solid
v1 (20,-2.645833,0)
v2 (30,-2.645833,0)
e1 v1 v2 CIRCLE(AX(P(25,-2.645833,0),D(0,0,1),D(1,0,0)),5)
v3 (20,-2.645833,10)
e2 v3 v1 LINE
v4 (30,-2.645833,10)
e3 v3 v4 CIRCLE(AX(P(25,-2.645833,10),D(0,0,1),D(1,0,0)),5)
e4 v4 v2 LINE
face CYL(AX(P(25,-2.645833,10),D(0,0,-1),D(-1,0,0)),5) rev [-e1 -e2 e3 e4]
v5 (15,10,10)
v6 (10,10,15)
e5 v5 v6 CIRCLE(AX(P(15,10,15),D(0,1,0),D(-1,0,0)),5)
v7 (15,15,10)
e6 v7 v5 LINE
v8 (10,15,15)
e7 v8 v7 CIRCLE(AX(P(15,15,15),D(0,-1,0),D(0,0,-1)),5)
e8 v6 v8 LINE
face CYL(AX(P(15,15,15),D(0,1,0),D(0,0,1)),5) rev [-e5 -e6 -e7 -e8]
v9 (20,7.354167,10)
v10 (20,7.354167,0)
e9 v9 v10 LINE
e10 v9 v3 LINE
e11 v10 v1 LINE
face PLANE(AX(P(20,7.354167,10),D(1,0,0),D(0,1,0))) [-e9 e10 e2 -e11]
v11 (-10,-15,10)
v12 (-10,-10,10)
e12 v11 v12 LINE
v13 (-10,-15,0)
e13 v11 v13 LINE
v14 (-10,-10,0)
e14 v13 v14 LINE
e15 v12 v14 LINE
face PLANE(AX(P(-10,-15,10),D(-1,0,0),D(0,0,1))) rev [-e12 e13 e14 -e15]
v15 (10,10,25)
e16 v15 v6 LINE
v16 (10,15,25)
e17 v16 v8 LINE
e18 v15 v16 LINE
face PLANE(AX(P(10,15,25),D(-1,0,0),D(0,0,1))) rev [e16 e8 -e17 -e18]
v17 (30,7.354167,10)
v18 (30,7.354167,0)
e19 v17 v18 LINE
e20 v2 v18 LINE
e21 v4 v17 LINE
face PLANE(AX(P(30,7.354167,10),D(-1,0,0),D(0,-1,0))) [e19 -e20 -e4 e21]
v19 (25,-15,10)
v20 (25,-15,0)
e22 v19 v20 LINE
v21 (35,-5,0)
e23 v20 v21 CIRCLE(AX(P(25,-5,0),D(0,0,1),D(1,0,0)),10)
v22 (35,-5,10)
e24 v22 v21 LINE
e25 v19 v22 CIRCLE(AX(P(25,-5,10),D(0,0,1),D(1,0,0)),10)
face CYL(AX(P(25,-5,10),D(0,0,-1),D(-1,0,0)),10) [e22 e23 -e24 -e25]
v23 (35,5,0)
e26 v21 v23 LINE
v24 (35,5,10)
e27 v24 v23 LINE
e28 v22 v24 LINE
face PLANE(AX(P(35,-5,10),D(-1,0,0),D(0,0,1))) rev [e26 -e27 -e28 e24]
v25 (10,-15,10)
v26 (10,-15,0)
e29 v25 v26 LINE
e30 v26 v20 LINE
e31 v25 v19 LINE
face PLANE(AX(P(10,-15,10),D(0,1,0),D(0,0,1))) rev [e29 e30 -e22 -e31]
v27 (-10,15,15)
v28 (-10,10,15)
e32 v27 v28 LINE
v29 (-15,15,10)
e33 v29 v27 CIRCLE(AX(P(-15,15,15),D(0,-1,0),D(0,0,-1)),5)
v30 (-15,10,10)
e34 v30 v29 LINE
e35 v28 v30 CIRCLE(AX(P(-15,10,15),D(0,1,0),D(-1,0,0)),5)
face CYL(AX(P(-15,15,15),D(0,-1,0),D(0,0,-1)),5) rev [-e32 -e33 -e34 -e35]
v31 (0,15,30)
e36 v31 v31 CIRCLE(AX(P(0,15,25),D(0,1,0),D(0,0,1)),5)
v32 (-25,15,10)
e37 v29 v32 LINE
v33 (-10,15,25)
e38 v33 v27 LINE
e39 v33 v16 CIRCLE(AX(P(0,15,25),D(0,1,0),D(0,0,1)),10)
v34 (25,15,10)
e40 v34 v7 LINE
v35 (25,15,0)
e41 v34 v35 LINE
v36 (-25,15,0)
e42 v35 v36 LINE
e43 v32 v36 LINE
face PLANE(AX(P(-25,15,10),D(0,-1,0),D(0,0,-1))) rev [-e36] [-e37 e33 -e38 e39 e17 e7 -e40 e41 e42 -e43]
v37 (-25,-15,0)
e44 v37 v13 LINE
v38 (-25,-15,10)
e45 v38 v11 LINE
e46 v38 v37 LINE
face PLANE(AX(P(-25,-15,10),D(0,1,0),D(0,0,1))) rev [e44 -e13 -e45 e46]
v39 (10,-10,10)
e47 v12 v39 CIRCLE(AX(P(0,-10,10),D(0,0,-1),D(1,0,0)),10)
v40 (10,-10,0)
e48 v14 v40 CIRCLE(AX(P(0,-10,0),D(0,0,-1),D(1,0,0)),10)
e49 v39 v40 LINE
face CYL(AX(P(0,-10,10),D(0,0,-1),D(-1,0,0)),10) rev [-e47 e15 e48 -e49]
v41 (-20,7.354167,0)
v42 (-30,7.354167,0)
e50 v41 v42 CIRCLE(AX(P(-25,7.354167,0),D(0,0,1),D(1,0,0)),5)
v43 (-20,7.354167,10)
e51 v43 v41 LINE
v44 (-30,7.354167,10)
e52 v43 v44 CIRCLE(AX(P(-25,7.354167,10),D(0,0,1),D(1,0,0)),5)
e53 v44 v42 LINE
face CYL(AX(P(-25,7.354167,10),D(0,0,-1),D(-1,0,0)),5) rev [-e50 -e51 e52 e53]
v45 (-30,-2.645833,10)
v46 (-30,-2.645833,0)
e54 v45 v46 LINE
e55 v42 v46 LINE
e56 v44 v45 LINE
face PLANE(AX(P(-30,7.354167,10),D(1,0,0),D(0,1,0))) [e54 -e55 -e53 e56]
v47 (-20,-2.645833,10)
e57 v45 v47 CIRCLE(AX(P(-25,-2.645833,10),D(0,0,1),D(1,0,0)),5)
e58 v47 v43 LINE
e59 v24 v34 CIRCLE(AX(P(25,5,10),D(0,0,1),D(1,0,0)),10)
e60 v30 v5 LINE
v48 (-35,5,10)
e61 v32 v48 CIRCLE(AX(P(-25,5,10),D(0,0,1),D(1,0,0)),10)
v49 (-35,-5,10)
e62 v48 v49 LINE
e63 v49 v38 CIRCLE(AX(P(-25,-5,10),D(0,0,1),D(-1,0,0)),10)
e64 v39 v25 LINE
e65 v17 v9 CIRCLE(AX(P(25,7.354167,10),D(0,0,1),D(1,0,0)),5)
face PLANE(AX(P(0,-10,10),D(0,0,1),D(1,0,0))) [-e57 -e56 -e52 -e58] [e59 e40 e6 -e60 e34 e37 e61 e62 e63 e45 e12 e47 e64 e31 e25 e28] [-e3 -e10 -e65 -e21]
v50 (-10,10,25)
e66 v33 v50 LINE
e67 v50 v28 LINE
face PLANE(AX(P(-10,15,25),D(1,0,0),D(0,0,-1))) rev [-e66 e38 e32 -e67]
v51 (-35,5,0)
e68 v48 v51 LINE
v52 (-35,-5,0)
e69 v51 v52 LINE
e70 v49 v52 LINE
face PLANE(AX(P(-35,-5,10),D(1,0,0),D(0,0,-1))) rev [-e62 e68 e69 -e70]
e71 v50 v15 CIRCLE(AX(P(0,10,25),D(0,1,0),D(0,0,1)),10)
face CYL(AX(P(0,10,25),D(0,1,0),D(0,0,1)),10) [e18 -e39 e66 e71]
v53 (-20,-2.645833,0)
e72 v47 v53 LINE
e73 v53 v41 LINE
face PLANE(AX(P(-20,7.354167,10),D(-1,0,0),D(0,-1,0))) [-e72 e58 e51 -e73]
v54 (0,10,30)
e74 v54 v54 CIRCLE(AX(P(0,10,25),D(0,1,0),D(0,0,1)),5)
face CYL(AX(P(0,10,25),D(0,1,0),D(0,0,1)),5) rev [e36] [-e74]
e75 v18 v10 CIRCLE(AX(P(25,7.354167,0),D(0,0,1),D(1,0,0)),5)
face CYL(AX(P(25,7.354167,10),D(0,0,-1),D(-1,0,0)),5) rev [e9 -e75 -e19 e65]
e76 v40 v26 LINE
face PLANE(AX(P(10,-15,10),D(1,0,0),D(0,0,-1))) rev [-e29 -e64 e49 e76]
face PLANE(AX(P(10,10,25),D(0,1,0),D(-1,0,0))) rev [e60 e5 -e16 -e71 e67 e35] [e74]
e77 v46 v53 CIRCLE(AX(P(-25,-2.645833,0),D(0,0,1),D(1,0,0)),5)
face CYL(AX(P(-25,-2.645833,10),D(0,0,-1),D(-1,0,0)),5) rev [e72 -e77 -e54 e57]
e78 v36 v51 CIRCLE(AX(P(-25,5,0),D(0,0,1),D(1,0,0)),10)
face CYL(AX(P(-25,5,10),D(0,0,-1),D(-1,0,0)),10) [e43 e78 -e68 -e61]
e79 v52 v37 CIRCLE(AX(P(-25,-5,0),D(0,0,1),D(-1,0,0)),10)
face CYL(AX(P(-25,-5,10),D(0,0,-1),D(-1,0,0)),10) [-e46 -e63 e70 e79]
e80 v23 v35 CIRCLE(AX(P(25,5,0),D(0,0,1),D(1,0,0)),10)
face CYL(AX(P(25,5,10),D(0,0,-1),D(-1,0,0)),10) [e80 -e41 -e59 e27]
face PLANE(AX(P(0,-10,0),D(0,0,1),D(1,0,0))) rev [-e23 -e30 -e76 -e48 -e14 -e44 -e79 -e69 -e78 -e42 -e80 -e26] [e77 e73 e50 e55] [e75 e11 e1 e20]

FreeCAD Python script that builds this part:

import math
import FreeCAD as App
import Part
import Sketcher

V = App.Vector
Q = App.Units.Quantity


def edges_at(feature, points):
    """Names of the edges that pass closest to the given points."""
    edges = feature.Shape.Edges
    near = lambda p: min(range(len(edges)), key=lambda i: edges[i].distToShape(Part.Vertex(*p))[0])
    return sorted({f"Edge{near(p) + 1}" for p in points})


def add_polygon(sketch, points):
    """Adds a closed chain of lines whose ends are joined by coincident constraints."""
    first, n = sketch.GeometryCount, len(points)
    for a, b in zip(points, points[1:] + points[:1]):
        sketch.addGeometry(Part.LineSegment(App.Vector(*a, 0), App.Vector(*b, 0)), False)
    for i in range(n):
        sketch.addConstraint(Sketcher.Constraint("Coincident", first + i, 2, first + (i + 1) % n, 1))

doc = App.newDocument("Part")
body = doc.addObject("PartDesign::Body", "Body")

sketch1 = body.newObject("Sketcher::SketchObject", "Sketch")
sketch1.AttachmentSupport = (doc.getObject("XY_Plane"), [""])
sketch1.MapMode = "FlatFace"
sketch1.addGeometry([
    Part.LineSegment(V(-10, -15, 0), V(-10, -10, 0)),
    Part.ArcOfCircle(Part.Circle(V(0, -10, 0), V(0, 0, 1), 10), math.radians(0), math.radians(180)),
    Part.LineSegment(V(10, -10, 0), V(10, -15, 0)),
    Part.LineSegment(V(10, -15, 0), V(25, -15, 0)),
    Part.ArcOfCircle(Part.Circle(V(25, -5, 0), V(0, 0, 1), 10), math.radians(-90), math.radians(0)),
    Part.LineSegment(V(35, -5, 0), V(35, 5, 0)),
    Part.ArcOfCircle(Part.Circle(V(25, 5, 0), V(0, 0, 1), 10), math.radians(0), math.radians(90)),
    Part.LineSegment(V(25, 15, 0), V(-25, 15, 0)),
    Part.ArcOfCircle(Part.Circle(V(-25, 5, 0), V(0, 0, 1), 10), math.radians(90), math.radians(180)),
    Part.LineSegment(V(-35, 5, 0), V(-35, -5, 0)),
    Part.ArcOfCircle(Part.Circle(V(-25, -5, 0), V(0, 0, 1), 10), math.radians(180), math.radians(270)),
    Part.LineSegment(V(-25, -15, 0), V(-10, -15, 0)),
    Part.ArcOfCircle(Part.Circle(V(-25, 7, 0), V(0, 0, 1), 5), math.radians(0), math.radians(180)),
    Part.LineSegment(V(-20, 7, 0), V(-20, -3, 0)),
    Part.ArcOfCircle(Part.Circle(V(-25, -3, 0), V(0, 0, 1), 5), math.radians(180), math.radians(360)),
    Part.LineSegment(V(-30, -3, 0), V(-30, 7, 0)),
    Part.ArcOfCircle(Part.Circle(V(25, 7, 0), V(0, 0, 1), 5), math.radians(0), math.radians(180)),
    Part.LineSegment(V(30, 7, 0), V(30, -3, 0)),
    Part.ArcOfCircle(Part.Circle(V(25, -3, 0), V(0, 0, 1), 5), math.radians(180), math.radians(360)),
    Part.LineSegment(V(20, -3, 0), V(20, 7, 0)),
], False)
sketch1.addConstraint([
    Sketcher.Constraint("Tangent", 0, 2, 1, 2),
    Sketcher.Constraint("Tangent", 1, 1, 2, 1),
    Sketcher.Constraint("Coincident", 2, 2, 3, 1),
    Sketcher.Constraint("Tangent", 3, 2, 4, 1),
    Sketcher.Constraint("Tangent", 4, 2, 5, 1),
    Sketcher.Constraint("Tangent", 5, 2, 6, 1),
    Sketcher.Constraint("Tangent", 6, 2, 7, 1),
    Sketcher.Constraint("Tangent", 7, 2, 8, 1),
    Sketcher.Constraint("Tangent", 8, 2, 9, 1),
    Sketcher.Constraint("Tangent", 9, 2, 10, 1),
    Sketcher.Constraint("Tangent", 10, 2, 11, 1),
    Sketcher.Constraint("Coincident", 11, 2, 0, 1),
    Sketcher.Constraint("Tangent", 12, 1, 13, 1),
    Sketcher.Constraint("Tangent", 13, 2, 14, 2),
    Sketcher.Constraint("Tangent", 14, 1, 15, 1),
    Sketcher.Constraint("Tangent", 15, 2, 12, 2),
    Sketcher.Constraint("Tangent", 16, 1, 17, 1),
    Sketcher.Constraint("Tangent", 17, 2, 18, 2),
    Sketcher.Constraint("Tangent", 18, 1, 19, 1),
    Sketcher.Constraint("Tangent", 19, 2, 16, 2),
    Sketcher.Constraint("Vertical", 0),
    Sketcher.Constraint("Vertical", 2),
    Sketcher.Constraint("Horizontal", 3),
    Sketcher.Constraint("Vertical", 5),
    Sketcher.Constraint("Horizontal", 7),
    Sketcher.Constraint("Vertical", 9),
    Sketcher.Constraint("Horizontal", 11),
    Sketcher.Constraint("Vertical", 13),
    Sketcher.Constraint("Vertical", 15),
    Sketcher.Constraint("Vertical", 17),
    Sketcher.Constraint("Vertical", 19),
    Sketcher.Constraint("Equal", 1, 4),
    Sketcher.Constraint("Equal", 4, 6),
    Sketcher.Constraint("Equal", 6, 8),
    Sketcher.Constraint("Equal", 8, 10),
    Sketcher.Constraint("Equal", 14, 16),
    Sketcher.Constraint("Symmetric", 4, 3, 8, 3, -1, 1),
    Sketcher.Constraint("Symmetric", 12, 3, 16, 3, -2),
    Sketcher.Constraint("Symmetric", 2, 2, 11, 2, -2),
    Sketcher.Constraint("Horizontal", 14, 3, 18, 3),
    Sketcher.Constraint("Vertical", 10, 3, 12, 3),
    Sketcher.Constraint("Equal", 9, 13),
    Sketcher.Constraint("Radius", 1, Q("10 mm")),
    Sketcher.Constraint("Radius", 12, Q("5 mm")),
    Sketcher.Constraint("DistanceX", 3, 1, 3, 2, Q("15 mm")),
    Sketcher.Constraint("DistanceY", 0, 1, 0, 2, Q("5 mm")),
    Sketcher.Constraint("DistanceY", 5, 1, 5, 2, Q("10 mm")),
    Sketcher.Constraint("DistanceY", -1, 1, 12, 3, Q("7.354167 mm")),
])
pad1 = body.newObject("PartDesign::Pad", "Pad")
pad1.Profile = sketch1
pad1.Length = 10

sketch2 = body.newObject("Sketcher::SketchObject", "Sketch001")
sketch2.AttachmentSupport = (doc.getObject("XY_Plane"), [""])
sketch2.MapMode = "FlatFace"
sketch2.AttachmentOffset = App.Placement(V(0, 0, 10), App.Rotation())
add_polygon(sketch2, [(-10, 15), (-10, 10), (10, 10), (10, 15)])
sketch2.addConstraint([
    Sketcher.Constraint("Vertical", 0),
    Sketcher.Constraint("Horizontal", 1),
    Sketcher.Constraint("Vertical", 2),
    Sketcher.Constraint("Horizontal", 3),
    Sketcher.Constraint("DistanceX", 1, 1, 1, 2, Q("20 mm")),
    Sketcher.Constraint("DistanceY", 0, 2, 0, 1, Q("5 mm")),
    Sketcher.Constraint("DistanceX", 0, 2, -1, 1, Q("10 mm")),
    Sketcher.Constraint("DistanceY", -1, 1, 0, 2, Q("10 mm")),
])
pad2 = body.newObject("PartDesign::Pad", "Pad001")
pad2.Profile = sketch2
pad2.Length = 15
doc.recompute()

fillet = body.newObject("PartDesign::Fillet", "Fillet")
fillet.Base = (pad2, edges_at(pad2, [(-10, 12.5, 10)]))
fillet.Radius = 5
doc.recompute()

fillet2 = body.newObject("PartDesign::Fillet", "Fillet001")
fillet2.Base = (fillet, edges_at(fillet, [(10, 12.5, 10)]))
fillet2.Radius = 5

sketch3 = body.newObject("Sketcher::SketchObject", "Sketch002")
sketch3.AttachmentSupport = (doc.getObject("XZ_Plane"), [""])
sketch3.MapMode = "FlatFace"
sketch3.AttachmentOffset = App.Placement(V(0, 0, -15), App.Rotation())
sketch3.addGeometry([
    Part.LineSegment(V(10, 25, 0), V(-10, 25, 0)),
    Part.ArcOfCircle(Part.Circle(V(0, 25, 0), V(0, 0, 1), 10), math.radians(0), math.radians(180)),
], False)
sketch3.addConstraint([
    Sketcher.Constraint("Coincident", 0, 1, 1, 1),
    Sketcher.Constraint("Coincident", 1, 2, 0, 2),
    Sketcher.Constraint("Horizontal", 0),
    Sketcher.Constraint("PointOnObject", 1, 3, -2),
    Sketcher.Constraint("Horizontal", 1, 3, 0, 1),
    Sketcher.Constraint("Radius", 1, Q("10 mm")),
    Sketcher.Constraint("DistanceY", -1, 1, 1, 3, Q("25 mm")),
])
pad3 = body.newObject("PartDesign::Pad", "Pad002")
pad3.Profile = sketch3
pad3.Length = 5

sketch4 = body.newObject("Sketcher::SketchObject", "Sketch003")
sketch4.AttachmentSupport = (doc.getObject("XZ_Plane"), [""])
sketch4.MapMode = "FlatFace"
sketch4.AttachmentOffset = App.Placement(V(0, 0, -15), App.Rotation())
sketch4.addGeometry(Part.Circle(V(0, 25, 0), V(0, 0, 1), 5), False)
sketch4.addConstraint([
    Sketcher.Constraint("PointOnObject", 0, 3, -2),
    Sketcher.Constraint("Diameter", 0, Q("10 mm")),
    Sketcher.Constraint("DistanceY", -1, 1, 0, 3, Q("25 mm")),
])
pocket1 = body.newObject("PartDesign::Pocket", "Pocket")
pocket1.Profile = sketch4
pocket1.Length = 5
pocket1.Reversed = True

doc.recompute()
